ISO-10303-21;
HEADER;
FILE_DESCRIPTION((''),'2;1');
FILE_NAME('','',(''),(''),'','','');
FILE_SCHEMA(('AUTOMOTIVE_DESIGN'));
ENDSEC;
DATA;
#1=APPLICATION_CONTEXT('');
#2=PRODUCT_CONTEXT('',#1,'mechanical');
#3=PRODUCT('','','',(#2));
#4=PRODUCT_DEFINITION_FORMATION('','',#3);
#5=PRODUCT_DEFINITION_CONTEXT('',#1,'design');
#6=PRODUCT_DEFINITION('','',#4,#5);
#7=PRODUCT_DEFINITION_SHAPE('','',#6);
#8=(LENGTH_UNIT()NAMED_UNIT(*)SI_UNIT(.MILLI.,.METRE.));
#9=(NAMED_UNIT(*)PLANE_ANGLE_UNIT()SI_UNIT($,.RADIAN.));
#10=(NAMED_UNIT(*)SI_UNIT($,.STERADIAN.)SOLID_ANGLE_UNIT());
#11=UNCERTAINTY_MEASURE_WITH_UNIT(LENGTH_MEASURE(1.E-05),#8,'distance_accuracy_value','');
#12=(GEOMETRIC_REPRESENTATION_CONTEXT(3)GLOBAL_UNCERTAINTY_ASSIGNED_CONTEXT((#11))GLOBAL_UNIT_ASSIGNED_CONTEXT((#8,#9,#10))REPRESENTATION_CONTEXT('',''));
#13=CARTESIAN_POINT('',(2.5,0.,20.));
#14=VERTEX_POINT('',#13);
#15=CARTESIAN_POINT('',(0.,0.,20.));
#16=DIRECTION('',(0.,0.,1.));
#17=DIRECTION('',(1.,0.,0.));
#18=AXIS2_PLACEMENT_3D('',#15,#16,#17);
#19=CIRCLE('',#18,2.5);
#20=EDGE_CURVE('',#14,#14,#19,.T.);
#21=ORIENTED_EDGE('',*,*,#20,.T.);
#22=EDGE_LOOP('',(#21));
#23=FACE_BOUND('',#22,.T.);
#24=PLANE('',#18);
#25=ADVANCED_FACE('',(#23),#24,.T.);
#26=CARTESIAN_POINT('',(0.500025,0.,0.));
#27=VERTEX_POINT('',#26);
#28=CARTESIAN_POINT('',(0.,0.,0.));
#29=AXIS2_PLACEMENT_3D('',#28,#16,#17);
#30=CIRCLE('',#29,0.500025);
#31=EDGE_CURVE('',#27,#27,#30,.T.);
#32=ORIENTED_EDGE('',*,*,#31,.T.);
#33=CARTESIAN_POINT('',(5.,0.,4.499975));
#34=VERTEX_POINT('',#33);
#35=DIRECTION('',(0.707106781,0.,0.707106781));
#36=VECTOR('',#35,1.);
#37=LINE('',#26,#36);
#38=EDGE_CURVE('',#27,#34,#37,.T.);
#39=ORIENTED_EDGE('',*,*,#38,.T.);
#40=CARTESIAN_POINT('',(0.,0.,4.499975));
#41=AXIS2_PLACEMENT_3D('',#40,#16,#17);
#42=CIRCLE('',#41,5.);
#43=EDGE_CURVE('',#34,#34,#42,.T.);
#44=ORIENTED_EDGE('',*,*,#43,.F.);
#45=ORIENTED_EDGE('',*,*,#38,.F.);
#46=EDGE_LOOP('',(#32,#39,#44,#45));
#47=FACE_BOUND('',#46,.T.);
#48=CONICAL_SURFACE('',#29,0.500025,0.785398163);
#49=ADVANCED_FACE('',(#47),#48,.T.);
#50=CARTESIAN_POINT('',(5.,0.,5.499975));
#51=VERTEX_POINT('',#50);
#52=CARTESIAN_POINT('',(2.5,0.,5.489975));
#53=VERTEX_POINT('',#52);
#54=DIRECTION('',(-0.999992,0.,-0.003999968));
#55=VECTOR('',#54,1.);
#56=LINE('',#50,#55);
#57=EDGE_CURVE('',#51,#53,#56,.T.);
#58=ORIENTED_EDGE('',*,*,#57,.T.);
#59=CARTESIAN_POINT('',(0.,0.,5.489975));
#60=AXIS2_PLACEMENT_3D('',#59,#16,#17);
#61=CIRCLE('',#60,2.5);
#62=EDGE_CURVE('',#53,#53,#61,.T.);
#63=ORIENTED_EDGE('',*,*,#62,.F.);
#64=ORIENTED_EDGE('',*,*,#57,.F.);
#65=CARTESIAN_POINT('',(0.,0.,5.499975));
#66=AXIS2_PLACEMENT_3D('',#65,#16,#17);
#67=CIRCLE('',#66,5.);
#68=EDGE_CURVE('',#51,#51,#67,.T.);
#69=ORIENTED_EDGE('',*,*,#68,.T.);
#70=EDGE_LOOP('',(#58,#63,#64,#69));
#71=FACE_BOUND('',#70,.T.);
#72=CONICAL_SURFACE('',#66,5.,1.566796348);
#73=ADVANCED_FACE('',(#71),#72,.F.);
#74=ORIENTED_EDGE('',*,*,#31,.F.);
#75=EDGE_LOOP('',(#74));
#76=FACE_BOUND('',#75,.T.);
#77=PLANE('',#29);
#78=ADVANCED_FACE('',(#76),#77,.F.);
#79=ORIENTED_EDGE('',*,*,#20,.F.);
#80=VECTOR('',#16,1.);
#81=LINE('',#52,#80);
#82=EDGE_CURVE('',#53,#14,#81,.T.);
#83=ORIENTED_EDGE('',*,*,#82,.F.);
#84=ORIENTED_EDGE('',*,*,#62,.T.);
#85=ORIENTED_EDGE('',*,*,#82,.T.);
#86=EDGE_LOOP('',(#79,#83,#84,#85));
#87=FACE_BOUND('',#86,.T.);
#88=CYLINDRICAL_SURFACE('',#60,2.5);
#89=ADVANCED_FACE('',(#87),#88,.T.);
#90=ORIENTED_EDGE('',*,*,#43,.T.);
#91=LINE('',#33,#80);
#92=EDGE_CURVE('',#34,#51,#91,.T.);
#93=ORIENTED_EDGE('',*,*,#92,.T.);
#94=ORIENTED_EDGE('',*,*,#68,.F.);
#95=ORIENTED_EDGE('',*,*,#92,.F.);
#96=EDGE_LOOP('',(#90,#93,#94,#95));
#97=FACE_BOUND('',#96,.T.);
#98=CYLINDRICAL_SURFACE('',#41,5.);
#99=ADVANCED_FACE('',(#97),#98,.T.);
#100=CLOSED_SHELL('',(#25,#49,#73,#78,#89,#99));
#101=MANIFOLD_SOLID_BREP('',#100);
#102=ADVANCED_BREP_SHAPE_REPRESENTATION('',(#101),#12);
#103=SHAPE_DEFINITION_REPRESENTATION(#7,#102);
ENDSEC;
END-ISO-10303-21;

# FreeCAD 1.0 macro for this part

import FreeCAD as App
import Part
import Sketcher

V = App.Vector
Q = App.Units.Quantity


def add_polygon(sketch, points):
    """Adds a closed chain of lines whose ends are joined by coincident constraints."""
    first, n = sketch.GeometryCount, len(points)
    for a, b in zip(points, points[1:] + points[:1]):
        sketch.addGeometry(Part.LineSegment(App.Vector(*a, 0), App.Vector(*b, 0)), False)
    for i in range(n):
        sketch.addConstraint(Sketcher.Constraint("Coincident", first + i, 2, first + (i + 1) % n, 1))

doc = App.newDocument("Part")
body = doc.addObject("PartDesign::Body", "Body")

sketch1 = body.newObject("Sketcher::SketchObject", "Sketch")
sketch1.AttachmentSupport = (doc.getObject("XZ_Plane"), [""])
sketch1.MapMode = "FlatFace"
add_polygon(sketch1, [(0, 20), (0, 0), (0.5, 0), (5, 4.5), (5, 5.5), (2.5, 5.5), (2.5, 20)])
sketch1.addConstraint([
    Sketcher.Constraint("Vertical", 0),
    Sketcher.Constraint("Horizontal", 1),
    Sketcher.Constraint("Vertical", 3),
    Sketcher.Constraint("Vertical", 5),
    Sketcher.Constraint("Horizontal", 6),
    Sketcher.Constraint("Coincident", 0, 2, -1, 1),
    Sketcher.Constraint("DistanceY", 0, 2, 0, 1, Q("20 mm")),
    Sketcher.Constraint("DistanceY", 3, 1, 3, 2, Q("1 mm")),
    Sketcher.Constraint("Angle", 2, Q("45 deg")),
    Sketcher.Constraint("DistanceX", 6, 2, 6, 1, Q("2.5 mm")),
    Sketcher.Constraint("DistanceX", -1, 1, 2, 2, Q("5 mm")),
    Sketcher.Constraint("DistanceY", 4, 2, 3, 2, Q("0.01 mm")),
    Sketcher.Constraint("DistanceX", 1, 1, 1, 2, Q("0.500025 mm")),
])
revolution = body.newObject("PartDesign::Revolution", "Revolution")
revolution.Profile = sketch1
revolution.ReferenceAxis = (sketch1, ["V_Axis"])
revolution.Angle = 360

doc.recompute()
